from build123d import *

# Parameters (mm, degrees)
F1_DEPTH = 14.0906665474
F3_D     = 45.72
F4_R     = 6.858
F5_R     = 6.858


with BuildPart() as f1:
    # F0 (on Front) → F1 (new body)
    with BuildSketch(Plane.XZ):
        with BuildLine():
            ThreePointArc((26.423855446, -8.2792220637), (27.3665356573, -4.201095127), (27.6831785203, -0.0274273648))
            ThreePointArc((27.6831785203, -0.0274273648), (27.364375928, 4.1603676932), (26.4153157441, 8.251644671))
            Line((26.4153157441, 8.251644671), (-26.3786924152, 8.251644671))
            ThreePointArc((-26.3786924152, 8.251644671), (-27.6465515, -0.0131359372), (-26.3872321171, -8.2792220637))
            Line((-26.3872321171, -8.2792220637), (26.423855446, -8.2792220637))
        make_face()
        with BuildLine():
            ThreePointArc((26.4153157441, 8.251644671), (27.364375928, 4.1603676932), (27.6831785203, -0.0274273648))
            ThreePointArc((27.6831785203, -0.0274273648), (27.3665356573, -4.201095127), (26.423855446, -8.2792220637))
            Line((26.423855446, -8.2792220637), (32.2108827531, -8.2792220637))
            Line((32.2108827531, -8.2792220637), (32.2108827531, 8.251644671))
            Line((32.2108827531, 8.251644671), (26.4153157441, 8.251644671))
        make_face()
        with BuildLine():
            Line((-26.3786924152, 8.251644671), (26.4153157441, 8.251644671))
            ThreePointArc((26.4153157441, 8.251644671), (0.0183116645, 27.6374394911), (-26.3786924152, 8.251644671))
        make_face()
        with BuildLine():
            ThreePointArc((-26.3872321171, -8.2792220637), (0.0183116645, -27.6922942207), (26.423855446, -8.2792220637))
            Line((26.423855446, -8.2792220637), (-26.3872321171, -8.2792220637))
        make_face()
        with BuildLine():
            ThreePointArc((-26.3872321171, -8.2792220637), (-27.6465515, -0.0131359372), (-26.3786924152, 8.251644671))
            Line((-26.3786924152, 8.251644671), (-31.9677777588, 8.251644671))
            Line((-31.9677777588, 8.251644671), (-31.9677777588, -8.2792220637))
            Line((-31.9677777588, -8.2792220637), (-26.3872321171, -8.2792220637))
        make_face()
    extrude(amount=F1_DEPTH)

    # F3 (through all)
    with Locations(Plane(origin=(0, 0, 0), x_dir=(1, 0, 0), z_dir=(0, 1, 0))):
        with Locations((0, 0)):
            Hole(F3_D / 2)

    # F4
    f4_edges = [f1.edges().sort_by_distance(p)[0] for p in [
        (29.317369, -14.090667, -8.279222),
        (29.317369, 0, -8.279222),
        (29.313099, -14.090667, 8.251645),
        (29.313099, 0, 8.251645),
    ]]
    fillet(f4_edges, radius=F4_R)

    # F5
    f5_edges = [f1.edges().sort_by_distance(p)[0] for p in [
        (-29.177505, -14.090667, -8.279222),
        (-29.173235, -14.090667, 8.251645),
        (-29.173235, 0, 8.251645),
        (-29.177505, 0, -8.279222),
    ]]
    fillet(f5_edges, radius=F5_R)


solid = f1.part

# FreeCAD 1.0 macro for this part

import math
import FreeCAD as App
import Part
import Sketcher
from FreeCAD import Vector
Q = App.Units.Quantity


def edges_at(feature, points):
    """Names of the edges that pass closest to the given points."""
    edges = feature.Shape.Edges
    near = lambda p: min(range(len(edges)), key=lambda i: edges[i].distToShape(Part.Vertex(*p))[0])
    return sorted({f"Edge{near(p) + 1}" for p in points})

doc = App.newDocument("Part")
body = doc.addObject("PartDesign::Body", "Body")

sketch1 = body.newObject("Sketcher::SketchObject", "Sketch")
sketch1.AttachmentSupport = (doc.getObject("XZ_Plane"), [""])
sketch1.MapMode = "FlatFace"
sketch1.addGeometry(Part.ArcOfCircle(Part.Circle(Vector(0, 0, 0), Vector(0, 0, 1), 28), math.radians(-163), math.radians(-17)), False)
sketch1.addGeometry(Part.LineSegment(Vector(26, -8, 0), Vector(32, -8, 0)), False)
sketch1.addGeometry(Part.LineSegment(Vector(32, -8, 0), Vector(32, 8, 0)), False)
sketch1.addGeometry(Part.LineSegment(Vector(32, 8, 0), Vector(26, 8, 0)), False)
sketch1.addGeometry(Part.ArcOfCircle(Part.Circle(Vector(0, 0, 0), Vector(0, 0, 1), 28), math.radians(17), math.radians(163)), False)
sketch1.addGeometry(Part.LineSegment(Vector(-26, 8, 0), Vector(-32, 8, 0)), False)
sketch1.addGeometry(Part.LineSegment(Vector(-32, 8, 0), Vector(-32, -8, 0)), False)
sketch1.addGeometry(Part.LineSegment(Vector(-32, -8, 0), Vector(-26, -8, 0)), False)
sketch1.addConstraint(Sketcher.Constraint("Coincident", 0, 2, 1, 1))
sketch1.addConstraint(Sketcher.Constraint("Coincident", 1, 2, 2, 1))
sketch1.addConstraint(Sketcher.Constraint("Coincident", 2, 2, 3, 1))
sketch1.addConstraint(Sketcher.Constraint("Coincident", 3, 2, 4, 1))
sketch1.addConstraint(Sketcher.Constraint("Coincident", 4, 2, 5, 1))
sketch1.addConstraint(Sketcher.Constraint("Coincident", 5, 2, 6, 1))
sketch1.addConstraint(Sketcher.Constraint("Coincident", 6, 2, 7, 1))
sketch1.addConstraint(Sketcher.Constraint("Coincident", 7, 2, 0, 1))
sketch1.addConstraint(Sketcher.Constraint("Horizontal", 1))
sketch1.addConstraint(Sketcher.Constraint("Vertical", 2))
sketch1.addConstraint(Sketcher.Constraint("Horizontal", 3))
sketch1.addConstraint(Sketcher.Constraint("Horizontal", 5))
sketch1.addConstraint(Sketcher.Constraint("Vertical", 6))
sketch1.addConstraint(Sketcher.Constraint("Horizontal", 7))
sketch1.addConstraint(Sketcher.Constraint("Coincident", 4, 3, 0, 3))
sketch1.addConstraint(Sketcher.Constraint("Equal", 0, 4))
sketch1.addConstraint(Sketcher.Constraint("Horizontal", 3, 2, 4, 2))
sketch1.addConstraint(Sketcher.Constraint("Horizontal", 1, 2, 6, 2))
sketch1.addConstraint(Sketcher.Constraint("Radius", 0, 27.664867))
sketch1.addConstraint(Sketcher.Constraint("DistanceX", 1, 1, 1, 2, 5.787027))
sketch1.addConstraint(Sketcher.Constraint("DistanceX", 3, 2, 3, 1, 5.795567))
sketch1.addConstraint(Sketcher.Constraint("DistanceX", 5, 2, 5, 1, 5.589085))
sketch1.addConstraint(Sketcher.Constraint("DistanceY", 2, 1, 2, 2, 16.530867))
sketch1.addConstraint(Sketcher.Constraint("DistanceX", -1, 1, 0, 3, 0.018312))
sketch1.addConstraint(Sketcher.Constraint("DistanceY", 0, 3, -1, 1, 0.027427))
pad1 = body.newObject("PartDesign::Pad", "Pad")
pad1.Profile = sketch1
pad1.Length = 14.090667

sketch2 = body.newObject("Sketcher::SketchObject", "Sketch001")
sketch2.AttachmentSupport = (doc.getObject("XZ_Plane"), [""])
sketch2.MapMode = "FlatFace"
sketch2.addGeometry(Part.Circle(Vector(0, 0, 0), Vector(0, 0, 1), 23), False)
sketch2.addConstraint(Sketcher.Constraint("Coincident", 0, 3, -1, 1))
sketch2.addConstraint(Sketcher.Constraint("Diameter", 0, Q("1.8 in")))
doc.recompute()
hole = body.newObject("PartDesign::Hole", "Hole")
hole.Profile = sketch2
hole.ThreadType = "None"
hole.Diameter = Q("1.8 in")
hole.DepthType = "ThroughAll"
hole.Reversed = True
doc.recompute()

fillet = body.newObject("PartDesign::Fillet", "Fillet")
fillet.Base = (hole, edges_at(hole, [
    (29.317, -14.091, -8.279),
    (29.317, 0, -8.279),
    (29.313, -14.091, 8.252),
    (29.313, 0, 8.252),
]))
fillet.Radius = Q("0.27 in")
doc.recompute()

fillet2 = body.newObject("PartDesign::Fillet", "Fillet001")
fillet2.Base = (fillet, edges_at(fillet, [
    (-29.178, -14.091, -8.279),
    (-29.173, -14.091, 8.252),
    (-29.173, 0, 8.252),
    (-29.178, 0, -8.279),
]))
fillet2.Radius = Q("0.27 in")

doc.recompute()
